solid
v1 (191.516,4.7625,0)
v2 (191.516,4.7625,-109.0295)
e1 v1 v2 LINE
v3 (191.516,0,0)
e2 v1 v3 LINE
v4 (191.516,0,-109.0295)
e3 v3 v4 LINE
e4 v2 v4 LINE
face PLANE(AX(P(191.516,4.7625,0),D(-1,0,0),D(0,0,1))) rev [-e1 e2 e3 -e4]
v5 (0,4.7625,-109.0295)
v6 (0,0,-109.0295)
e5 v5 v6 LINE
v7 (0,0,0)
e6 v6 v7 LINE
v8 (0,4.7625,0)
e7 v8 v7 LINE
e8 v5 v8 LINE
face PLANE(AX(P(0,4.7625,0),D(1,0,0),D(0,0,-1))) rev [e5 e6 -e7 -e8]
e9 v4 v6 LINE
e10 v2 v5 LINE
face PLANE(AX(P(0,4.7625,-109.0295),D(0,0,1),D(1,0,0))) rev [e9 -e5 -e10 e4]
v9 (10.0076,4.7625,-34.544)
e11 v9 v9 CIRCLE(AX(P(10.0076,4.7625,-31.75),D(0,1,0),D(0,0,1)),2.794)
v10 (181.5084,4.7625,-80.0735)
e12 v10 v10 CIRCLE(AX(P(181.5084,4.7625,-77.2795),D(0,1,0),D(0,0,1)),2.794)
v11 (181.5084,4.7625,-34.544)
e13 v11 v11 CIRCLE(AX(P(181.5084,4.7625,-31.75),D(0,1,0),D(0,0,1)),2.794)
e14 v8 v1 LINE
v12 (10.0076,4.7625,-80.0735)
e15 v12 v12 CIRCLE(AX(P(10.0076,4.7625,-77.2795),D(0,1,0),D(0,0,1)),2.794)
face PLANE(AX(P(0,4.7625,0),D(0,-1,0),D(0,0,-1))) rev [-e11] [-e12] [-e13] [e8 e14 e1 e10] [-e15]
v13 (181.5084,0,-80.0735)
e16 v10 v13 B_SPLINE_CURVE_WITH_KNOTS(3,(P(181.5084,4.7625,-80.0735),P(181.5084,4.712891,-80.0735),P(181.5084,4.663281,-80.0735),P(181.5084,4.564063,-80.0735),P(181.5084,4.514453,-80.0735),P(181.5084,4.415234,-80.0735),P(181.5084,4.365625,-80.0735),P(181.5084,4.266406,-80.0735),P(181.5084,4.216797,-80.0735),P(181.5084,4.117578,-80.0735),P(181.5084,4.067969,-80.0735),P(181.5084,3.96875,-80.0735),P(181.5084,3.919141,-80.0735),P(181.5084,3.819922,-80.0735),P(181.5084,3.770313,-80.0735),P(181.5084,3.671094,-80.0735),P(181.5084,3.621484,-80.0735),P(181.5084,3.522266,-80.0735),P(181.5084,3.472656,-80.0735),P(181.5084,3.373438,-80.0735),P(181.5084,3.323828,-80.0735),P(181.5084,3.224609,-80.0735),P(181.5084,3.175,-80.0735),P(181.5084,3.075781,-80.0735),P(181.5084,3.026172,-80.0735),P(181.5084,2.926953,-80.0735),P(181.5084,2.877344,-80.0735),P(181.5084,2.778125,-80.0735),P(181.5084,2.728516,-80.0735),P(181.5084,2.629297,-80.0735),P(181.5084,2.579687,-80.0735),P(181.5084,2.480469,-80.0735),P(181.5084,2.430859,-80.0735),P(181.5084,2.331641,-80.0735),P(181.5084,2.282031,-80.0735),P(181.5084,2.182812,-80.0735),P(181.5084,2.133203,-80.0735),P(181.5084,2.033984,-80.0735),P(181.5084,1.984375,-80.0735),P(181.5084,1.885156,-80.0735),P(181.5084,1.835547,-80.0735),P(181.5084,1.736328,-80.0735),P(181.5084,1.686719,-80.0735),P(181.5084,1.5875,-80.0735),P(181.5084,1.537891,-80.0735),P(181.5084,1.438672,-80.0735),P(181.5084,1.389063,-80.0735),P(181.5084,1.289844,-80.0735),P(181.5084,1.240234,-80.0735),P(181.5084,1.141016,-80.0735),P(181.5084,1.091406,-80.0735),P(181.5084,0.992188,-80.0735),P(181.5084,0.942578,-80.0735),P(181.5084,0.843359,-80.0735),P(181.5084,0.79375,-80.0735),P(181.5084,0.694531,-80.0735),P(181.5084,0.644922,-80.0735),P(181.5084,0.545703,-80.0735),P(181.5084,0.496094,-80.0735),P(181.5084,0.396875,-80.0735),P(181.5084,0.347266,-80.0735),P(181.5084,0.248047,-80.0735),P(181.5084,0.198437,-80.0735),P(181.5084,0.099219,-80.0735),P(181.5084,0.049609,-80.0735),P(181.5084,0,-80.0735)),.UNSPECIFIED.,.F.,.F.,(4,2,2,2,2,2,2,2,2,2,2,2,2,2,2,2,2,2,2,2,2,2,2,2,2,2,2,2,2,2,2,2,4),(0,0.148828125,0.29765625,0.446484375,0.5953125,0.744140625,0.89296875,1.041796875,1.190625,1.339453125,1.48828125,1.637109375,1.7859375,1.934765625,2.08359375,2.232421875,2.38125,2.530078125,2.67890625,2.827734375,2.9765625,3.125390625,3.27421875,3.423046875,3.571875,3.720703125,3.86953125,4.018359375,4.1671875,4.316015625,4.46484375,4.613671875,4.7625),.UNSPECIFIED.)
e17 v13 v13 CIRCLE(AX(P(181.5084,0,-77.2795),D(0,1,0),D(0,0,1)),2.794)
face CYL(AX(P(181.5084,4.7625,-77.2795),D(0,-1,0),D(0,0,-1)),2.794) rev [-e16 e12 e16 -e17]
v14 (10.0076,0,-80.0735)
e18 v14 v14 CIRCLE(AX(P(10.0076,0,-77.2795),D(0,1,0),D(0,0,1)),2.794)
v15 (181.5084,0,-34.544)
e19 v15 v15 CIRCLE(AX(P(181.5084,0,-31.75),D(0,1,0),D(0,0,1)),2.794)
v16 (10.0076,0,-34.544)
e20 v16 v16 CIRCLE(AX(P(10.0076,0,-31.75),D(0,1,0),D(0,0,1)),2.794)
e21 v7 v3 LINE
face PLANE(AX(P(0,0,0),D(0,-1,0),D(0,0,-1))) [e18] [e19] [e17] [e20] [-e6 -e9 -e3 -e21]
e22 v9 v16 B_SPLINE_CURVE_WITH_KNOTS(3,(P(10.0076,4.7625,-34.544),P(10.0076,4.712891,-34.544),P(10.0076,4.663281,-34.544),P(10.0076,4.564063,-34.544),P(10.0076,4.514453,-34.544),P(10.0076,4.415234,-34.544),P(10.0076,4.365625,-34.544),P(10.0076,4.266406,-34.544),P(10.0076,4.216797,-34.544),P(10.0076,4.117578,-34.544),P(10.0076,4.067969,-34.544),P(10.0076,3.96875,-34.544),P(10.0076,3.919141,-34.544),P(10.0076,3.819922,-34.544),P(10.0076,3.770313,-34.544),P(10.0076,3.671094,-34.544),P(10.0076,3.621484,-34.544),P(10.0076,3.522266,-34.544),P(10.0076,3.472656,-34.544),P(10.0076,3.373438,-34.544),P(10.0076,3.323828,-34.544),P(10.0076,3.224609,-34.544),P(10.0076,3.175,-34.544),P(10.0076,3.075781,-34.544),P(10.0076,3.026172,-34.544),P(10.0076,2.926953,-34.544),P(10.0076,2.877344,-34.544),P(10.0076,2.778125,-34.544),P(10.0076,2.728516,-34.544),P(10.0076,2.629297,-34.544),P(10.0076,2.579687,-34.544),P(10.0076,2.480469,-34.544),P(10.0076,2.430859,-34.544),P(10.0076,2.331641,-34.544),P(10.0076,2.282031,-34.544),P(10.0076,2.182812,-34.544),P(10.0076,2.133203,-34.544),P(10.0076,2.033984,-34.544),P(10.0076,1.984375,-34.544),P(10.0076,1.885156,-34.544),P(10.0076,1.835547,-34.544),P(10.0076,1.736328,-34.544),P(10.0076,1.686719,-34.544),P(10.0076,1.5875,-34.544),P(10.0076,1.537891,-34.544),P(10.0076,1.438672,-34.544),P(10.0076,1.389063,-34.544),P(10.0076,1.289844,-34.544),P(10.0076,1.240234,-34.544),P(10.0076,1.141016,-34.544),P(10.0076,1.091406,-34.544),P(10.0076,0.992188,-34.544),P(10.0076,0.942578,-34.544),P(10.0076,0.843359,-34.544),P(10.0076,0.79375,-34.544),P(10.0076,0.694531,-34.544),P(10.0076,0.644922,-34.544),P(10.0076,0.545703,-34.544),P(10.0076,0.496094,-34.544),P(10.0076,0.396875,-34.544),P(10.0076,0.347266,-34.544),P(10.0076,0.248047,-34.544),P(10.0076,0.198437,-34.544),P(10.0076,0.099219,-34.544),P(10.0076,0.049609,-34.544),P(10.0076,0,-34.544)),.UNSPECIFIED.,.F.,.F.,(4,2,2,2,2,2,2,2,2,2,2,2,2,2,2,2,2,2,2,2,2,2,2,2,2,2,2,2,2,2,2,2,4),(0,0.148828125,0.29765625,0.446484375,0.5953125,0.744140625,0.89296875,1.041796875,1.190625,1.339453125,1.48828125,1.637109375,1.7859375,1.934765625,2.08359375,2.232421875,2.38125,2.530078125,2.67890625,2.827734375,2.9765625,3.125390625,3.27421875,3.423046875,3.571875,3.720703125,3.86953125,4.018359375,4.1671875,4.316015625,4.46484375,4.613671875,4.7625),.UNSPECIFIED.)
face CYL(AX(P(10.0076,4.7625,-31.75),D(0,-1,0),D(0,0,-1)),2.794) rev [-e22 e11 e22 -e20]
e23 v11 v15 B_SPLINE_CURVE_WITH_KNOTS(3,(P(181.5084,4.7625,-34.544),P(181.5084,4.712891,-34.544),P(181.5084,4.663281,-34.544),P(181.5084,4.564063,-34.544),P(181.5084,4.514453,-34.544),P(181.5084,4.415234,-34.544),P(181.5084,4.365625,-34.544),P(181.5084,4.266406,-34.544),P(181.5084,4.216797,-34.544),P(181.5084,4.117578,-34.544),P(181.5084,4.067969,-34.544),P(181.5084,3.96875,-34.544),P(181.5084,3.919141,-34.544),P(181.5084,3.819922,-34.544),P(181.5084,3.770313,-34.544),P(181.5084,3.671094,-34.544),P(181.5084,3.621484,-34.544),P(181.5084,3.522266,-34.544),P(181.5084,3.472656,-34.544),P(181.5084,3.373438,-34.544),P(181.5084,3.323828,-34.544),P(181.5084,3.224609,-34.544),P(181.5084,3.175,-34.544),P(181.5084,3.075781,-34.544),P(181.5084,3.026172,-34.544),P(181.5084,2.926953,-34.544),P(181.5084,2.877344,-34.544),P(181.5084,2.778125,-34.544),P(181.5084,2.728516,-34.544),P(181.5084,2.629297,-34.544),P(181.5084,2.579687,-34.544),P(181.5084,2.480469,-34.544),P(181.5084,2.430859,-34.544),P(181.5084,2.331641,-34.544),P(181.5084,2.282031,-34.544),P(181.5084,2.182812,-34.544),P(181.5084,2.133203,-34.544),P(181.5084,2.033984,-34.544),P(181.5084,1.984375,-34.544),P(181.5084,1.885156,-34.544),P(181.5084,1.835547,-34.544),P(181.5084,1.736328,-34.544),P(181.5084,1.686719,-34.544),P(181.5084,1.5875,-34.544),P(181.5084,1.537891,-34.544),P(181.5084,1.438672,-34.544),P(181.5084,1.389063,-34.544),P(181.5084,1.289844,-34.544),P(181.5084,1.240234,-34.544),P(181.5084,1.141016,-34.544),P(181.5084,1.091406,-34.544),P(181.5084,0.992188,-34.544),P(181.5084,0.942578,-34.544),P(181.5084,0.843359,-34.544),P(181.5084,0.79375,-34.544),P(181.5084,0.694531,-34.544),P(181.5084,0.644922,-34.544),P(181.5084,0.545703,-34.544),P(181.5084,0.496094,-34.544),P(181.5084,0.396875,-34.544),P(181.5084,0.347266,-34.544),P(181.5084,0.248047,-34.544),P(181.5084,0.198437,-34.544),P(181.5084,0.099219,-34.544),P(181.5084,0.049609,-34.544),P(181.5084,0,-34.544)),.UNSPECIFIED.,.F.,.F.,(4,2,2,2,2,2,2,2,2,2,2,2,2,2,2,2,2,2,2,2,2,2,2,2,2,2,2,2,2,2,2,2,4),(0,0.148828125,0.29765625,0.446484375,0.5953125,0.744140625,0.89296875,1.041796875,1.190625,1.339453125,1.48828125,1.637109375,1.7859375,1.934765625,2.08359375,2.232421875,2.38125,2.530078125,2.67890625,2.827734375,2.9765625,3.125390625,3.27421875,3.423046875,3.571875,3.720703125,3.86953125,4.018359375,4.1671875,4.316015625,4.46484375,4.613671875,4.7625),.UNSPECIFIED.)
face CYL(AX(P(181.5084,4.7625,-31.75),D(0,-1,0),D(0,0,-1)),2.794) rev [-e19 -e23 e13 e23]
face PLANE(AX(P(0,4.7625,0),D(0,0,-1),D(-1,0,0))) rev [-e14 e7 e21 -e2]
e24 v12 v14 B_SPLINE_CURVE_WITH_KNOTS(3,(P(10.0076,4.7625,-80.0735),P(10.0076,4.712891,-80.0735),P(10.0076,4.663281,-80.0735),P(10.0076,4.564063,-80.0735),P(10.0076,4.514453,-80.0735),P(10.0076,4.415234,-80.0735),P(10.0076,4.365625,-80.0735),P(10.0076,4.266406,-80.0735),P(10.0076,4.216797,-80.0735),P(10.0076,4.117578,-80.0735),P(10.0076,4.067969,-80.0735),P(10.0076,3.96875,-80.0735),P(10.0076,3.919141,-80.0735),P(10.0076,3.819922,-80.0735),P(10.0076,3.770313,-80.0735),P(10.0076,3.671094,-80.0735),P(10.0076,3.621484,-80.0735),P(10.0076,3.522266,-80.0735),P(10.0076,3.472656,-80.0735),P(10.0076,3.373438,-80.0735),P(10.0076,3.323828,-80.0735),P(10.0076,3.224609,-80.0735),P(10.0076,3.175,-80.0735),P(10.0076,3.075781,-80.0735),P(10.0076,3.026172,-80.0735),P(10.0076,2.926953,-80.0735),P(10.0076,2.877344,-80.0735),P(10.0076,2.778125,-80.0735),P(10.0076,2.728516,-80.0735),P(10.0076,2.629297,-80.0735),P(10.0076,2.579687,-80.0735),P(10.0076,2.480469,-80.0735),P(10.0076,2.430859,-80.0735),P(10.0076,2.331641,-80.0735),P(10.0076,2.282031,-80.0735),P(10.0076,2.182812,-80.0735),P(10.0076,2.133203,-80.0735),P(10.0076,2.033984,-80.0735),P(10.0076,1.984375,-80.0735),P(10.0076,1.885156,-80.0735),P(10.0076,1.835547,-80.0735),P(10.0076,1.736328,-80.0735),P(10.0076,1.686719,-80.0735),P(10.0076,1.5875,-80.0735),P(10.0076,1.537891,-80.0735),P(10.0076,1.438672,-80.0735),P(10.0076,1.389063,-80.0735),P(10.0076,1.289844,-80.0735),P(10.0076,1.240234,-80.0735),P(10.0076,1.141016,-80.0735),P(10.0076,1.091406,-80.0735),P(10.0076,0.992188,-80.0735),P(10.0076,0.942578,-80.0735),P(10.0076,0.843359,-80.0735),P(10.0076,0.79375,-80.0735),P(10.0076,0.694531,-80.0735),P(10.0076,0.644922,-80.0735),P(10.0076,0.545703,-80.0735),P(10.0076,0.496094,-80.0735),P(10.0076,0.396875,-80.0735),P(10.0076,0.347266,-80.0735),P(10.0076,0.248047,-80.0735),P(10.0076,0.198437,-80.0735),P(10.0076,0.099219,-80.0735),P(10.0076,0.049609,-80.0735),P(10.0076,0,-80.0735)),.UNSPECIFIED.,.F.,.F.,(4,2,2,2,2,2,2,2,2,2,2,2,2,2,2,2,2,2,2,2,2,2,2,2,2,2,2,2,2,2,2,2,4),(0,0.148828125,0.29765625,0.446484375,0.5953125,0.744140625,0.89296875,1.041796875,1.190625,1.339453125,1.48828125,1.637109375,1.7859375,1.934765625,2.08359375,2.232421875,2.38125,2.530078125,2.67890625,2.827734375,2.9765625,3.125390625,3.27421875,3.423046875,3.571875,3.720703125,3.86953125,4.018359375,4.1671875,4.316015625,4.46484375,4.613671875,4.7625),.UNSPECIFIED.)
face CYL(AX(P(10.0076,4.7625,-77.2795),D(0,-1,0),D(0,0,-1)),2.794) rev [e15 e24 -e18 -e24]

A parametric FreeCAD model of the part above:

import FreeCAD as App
import Part
import Sketcher
from FreeCAD import Vector
Q = App.Units.Quantity


def add_polygon(sketch, points):
    """Adds a closed chain of lines whose ends are joined by coincident constraints."""
    first, n = sketch.GeometryCount, len(points)
    for a, b in zip(points, points[1:] + points[:1]):
        sketch.addGeometry(Part.LineSegment(App.Vector(*a, 0), App.Vector(*b, 0)), False)
    for i in range(n):
        sketch.addConstraint(Sketcher.Constraint("Coincident", first + i, 2, first + (i + 1) % n, 1))

doc = App.newDocument("Part")
params = doc.addObject("Spreadsheet::Sheet", "Params")
for row, (alias, value) in enumerate([
    ("sketch1_diameter", "0.22 in"),
    ("sketch1_width", "7.54 in"),
    ("pad1_length", "0.1875 in"),
], start=1):
    params.set(f"A{row}", alias)
    params.set(f"B{row}", "=" + value)
    params.setAlias(f"B{row}", alias)

body = doc.addObject("PartDesign::Body", "Body")

# Sketch on XZ plane
sketch1 = doc.addObject("Sketcher::SketchObject", "Sketch")
body.addObject(sketch1)
sketch1.AttachmentSupport = (doc.XZ_Plane, [""])
sketch1.MapMode = "FlatFace"
add_polygon(sketch1, [(0, -109), (0, 0), (191.5, 0), (191.5, -109)])  # lines 0-3
sketch1.addGeometry(Part.Circle(Vector(10, -31.8, 0), Vector(0, 0, 1), 2.8), False)  # 4
sketch1.addGeometry(Part.Circle(Vector(181.5, -31.8, 0), Vector(0, 0, 1), 2.8), False)  # 5
sketch1.addGeometry(Part.Circle(Vector(10, -77.3, 0), Vector(0, 0, 1), 2.8), False)  # 6
sketch1.addGeometry(Part.Circle(Vector(181.5, -77.3, 0), Vector(0, 0, 1), 2.8), False)  # 7
sketch1.addConstraint(Sketcher.Constraint("Vertical", 0))
sketch1.addConstraint(Sketcher.Constraint("Horizontal", 1))
sketch1.addConstraint(Sketcher.Constraint("Vertical", 2))
sketch1.addConstraint(Sketcher.Constraint("Horizontal", 3))
sketch1.addConstraint(Sketcher.Constraint("Coincident", 0, 2, -1, 1))
sketch1.addConstraint(Sketcher.Constraint("Equal", 4, 5))
sketch1.addConstraint(Sketcher.Constraint("Equal", 5, 6))
sketch1.addConstraint(Sketcher.Constraint("Equal", 6, 7))
sketch1.addConstraint(Sketcher.Constraint("Horizontal", 4, 3, 5, 3))
sketch1.addConstraint(Sketcher.Constraint("Horizontal", 6, 3, 7, 3))
sketch1.addConstraint(Sketcher.Constraint("Vertical", 4, 3, 6, 3))
sketch1.addConstraint(Sketcher.Constraint("Vertical", 5, 3, 7, 3))
sketch1.addConstraint(Sketcher.Constraint("Diameter", 4, Q("0.22 in")))
sketch1.addConstraint(Sketcher.Constraint("DistanceX", 1, 1, 1, 2, Q("7.54 in")))
sketch1.addConstraint(Sketcher.Constraint("DistanceY", 4, 3, -1, 1, Q("1.25 in")))
sketch1.addConstraint(Sketcher.Constraint("DistanceY", 2, 2, 7, 3, Q("1.25 in")))
sketch1.addConstraint(Sketcher.Constraint("DistanceY", 0, 1, 0, 2, Q("4.2925 in")))
sketch1.addConstraint(Sketcher.Constraint("DistanceX", -1, 1, 4, 3, Q("0.394 in")))
sketch1.addConstraint(Sketcher.Constraint("DistanceX", -1, 1, 5, 3, Q("7.146 in")))
sketch1.setExpression("Constraints[16]", "Params.sketch1_diameter")
sketch1.setExpression("Constraints[17]", "Params.sketch1_width")
pad1 = doc.addObject("PartDesign::Pad", "Pad")
body.addObject(pad1)
pad1.Profile = sketch1
pad1.setExpression("Length", "Params.pad1_length")
pad1.Reversed = True

doc.recompute()
